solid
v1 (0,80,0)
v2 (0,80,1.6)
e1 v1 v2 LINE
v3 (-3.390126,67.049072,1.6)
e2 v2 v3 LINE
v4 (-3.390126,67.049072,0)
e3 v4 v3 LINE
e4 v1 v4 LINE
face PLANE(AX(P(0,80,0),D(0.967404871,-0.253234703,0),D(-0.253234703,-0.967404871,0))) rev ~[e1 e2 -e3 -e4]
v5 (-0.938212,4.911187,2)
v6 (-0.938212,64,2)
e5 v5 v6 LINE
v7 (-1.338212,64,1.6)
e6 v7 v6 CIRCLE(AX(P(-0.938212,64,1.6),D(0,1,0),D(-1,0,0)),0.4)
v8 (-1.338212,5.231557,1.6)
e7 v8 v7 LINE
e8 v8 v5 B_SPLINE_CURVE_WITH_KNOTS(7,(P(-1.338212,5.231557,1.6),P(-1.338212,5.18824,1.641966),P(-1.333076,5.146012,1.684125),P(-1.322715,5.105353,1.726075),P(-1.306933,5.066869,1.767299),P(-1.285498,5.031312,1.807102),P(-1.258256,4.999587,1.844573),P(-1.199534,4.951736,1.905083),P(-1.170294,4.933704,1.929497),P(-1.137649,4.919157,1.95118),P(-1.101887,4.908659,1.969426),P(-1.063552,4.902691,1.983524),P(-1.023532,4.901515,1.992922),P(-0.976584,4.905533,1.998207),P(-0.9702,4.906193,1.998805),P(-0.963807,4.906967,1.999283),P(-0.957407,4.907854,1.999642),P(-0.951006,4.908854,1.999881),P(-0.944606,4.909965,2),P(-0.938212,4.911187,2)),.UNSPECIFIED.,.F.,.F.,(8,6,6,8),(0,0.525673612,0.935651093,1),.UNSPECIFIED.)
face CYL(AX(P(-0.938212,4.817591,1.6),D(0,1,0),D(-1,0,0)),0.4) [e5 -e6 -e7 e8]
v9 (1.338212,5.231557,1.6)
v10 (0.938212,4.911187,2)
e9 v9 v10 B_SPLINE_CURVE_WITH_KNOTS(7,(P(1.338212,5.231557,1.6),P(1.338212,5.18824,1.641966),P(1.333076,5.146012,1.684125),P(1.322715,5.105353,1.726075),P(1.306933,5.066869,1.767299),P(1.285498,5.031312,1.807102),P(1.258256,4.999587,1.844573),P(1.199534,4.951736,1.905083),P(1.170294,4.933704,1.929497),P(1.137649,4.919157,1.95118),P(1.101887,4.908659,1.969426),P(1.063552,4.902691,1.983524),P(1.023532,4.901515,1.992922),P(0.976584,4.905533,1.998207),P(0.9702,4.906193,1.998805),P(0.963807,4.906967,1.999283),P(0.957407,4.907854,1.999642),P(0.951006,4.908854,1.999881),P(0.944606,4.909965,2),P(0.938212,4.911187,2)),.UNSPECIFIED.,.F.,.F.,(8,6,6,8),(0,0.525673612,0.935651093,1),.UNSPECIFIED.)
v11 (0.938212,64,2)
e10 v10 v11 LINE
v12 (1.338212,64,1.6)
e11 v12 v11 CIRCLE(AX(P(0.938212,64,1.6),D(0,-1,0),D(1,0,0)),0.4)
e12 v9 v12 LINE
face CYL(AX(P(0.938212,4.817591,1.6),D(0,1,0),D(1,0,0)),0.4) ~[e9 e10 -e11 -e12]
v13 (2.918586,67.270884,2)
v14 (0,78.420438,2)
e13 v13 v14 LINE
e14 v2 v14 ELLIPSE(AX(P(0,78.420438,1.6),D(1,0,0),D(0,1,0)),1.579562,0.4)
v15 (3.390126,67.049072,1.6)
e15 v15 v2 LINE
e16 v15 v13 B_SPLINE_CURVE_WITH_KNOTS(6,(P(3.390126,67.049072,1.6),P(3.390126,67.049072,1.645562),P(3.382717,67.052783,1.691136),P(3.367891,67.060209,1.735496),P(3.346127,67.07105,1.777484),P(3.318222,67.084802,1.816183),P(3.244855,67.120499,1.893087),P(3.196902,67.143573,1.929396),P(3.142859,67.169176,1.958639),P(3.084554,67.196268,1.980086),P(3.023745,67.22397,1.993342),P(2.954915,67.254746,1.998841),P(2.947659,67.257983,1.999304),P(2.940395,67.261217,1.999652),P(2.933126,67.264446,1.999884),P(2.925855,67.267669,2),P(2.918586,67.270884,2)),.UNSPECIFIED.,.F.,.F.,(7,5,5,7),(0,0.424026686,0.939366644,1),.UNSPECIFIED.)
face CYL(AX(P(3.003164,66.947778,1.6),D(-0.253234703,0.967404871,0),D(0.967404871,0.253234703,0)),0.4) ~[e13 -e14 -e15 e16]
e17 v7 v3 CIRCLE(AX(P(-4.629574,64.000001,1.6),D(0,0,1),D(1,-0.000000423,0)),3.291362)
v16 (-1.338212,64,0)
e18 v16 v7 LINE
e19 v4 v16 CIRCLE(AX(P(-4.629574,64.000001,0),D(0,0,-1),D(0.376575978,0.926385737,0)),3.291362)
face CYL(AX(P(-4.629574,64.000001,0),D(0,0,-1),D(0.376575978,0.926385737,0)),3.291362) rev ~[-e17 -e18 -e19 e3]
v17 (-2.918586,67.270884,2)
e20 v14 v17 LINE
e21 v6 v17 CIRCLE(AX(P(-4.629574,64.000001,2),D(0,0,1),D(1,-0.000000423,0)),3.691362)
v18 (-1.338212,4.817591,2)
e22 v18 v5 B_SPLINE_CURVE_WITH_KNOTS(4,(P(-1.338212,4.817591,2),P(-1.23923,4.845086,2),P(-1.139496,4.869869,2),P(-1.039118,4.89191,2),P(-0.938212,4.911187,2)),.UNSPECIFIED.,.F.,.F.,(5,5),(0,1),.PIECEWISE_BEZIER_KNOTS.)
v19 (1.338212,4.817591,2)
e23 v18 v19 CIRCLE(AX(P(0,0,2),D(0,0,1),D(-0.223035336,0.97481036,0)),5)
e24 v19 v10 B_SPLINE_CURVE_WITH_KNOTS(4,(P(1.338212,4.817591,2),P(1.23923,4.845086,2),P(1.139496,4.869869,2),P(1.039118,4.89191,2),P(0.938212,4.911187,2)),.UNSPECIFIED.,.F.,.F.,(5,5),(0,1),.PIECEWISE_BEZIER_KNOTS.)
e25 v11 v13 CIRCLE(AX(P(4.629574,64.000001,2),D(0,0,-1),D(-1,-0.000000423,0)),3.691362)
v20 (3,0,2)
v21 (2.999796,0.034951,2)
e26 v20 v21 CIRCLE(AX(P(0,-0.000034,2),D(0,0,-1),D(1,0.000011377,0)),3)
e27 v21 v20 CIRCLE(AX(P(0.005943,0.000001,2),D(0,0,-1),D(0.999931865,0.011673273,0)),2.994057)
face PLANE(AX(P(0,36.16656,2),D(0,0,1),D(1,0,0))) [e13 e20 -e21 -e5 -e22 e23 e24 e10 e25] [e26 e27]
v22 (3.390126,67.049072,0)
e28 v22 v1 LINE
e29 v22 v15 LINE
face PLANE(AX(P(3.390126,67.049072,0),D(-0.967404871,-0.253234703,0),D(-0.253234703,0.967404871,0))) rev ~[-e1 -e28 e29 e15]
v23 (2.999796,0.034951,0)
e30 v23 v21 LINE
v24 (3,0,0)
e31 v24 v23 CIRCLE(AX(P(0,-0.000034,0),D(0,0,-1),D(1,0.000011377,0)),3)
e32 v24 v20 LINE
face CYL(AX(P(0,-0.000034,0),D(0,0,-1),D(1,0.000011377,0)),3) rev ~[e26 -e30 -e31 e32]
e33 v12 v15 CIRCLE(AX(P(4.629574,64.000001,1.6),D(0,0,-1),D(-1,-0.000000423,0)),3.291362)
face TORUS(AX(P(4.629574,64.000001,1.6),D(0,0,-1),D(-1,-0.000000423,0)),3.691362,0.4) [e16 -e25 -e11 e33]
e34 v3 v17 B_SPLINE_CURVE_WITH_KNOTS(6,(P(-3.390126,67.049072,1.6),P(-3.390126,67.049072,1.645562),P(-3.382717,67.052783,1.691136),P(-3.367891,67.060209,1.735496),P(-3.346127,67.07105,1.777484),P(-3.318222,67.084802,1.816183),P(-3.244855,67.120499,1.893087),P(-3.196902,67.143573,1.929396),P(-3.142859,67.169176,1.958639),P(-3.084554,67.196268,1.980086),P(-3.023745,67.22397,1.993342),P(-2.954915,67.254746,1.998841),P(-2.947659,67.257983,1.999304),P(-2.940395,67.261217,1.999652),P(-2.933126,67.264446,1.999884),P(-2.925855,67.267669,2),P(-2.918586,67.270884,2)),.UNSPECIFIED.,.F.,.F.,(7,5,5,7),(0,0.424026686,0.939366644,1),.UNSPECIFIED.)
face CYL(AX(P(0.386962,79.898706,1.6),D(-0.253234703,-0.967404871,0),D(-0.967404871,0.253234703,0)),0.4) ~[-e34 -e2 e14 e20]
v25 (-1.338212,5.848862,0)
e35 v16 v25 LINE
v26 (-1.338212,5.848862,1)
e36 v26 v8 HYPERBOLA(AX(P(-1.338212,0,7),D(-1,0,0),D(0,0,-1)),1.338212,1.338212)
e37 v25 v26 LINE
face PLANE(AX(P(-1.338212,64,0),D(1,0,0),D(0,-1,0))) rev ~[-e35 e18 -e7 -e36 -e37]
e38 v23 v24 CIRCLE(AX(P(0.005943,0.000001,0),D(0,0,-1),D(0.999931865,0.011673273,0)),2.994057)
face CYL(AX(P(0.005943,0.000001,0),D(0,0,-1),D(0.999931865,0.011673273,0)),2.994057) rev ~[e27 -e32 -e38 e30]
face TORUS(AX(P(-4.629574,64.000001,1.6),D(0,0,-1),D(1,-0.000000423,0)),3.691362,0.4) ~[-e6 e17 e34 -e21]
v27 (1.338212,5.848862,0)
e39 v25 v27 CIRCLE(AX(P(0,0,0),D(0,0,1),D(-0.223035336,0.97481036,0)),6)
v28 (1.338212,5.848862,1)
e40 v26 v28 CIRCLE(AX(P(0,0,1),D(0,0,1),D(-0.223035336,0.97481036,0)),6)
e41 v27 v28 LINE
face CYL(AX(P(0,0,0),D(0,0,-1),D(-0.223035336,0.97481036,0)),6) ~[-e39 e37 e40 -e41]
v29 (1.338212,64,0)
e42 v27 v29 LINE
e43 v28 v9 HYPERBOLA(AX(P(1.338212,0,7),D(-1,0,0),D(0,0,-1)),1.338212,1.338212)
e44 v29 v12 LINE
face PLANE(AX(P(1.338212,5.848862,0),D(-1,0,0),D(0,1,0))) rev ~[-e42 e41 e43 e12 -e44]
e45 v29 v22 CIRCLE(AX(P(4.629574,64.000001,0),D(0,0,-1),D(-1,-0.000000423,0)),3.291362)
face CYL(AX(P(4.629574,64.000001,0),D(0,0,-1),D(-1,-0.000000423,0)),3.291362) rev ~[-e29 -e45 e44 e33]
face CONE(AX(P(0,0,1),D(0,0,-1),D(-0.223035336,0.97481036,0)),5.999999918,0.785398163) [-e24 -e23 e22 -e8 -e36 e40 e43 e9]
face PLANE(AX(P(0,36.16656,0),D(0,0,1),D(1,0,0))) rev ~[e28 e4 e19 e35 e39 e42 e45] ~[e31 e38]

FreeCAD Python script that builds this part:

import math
import FreeCAD as App
import Part
import Sketcher
from FreeCAD import Vector
Q = App.Units.Quantity


def edges_at(feature, points):
    """Names of the edges that pass closest to the given points."""
    edges = feature.Shape.Edges
    near = lambda p: min(range(len(edges)), key=lambda i: edges[i].distToShape(Part.Vertex(*p))[0])
    return sorted({f"Edge{near(p) + 1}" for p in points})

doc = App.newDocument("Part")
body = doc.addObject("PartDesign::Body", "Body")

# Sketch on XY plane
sketch1 = body.newObject("Sketcher::SketchObject", "Sketch")
sketch1.AttachmentSupport = (doc.getObject("XY_Plane"), [""])
sketch1.MapMode = "FlatFace"
sketch1.addGeometry(Part.LineSegment(Vector(-1.338, 64, 0), Vector(-1.338, 5.849, 0)), False)
sketch1.addGeometry(Part.ArcOfCircle(Part.Circle(Vector(0, 0, 0), Vector(0, 0, 1), 6), math.radians(103), math.radians(437)), False)
sketch1.addGeometry(Part.LineSegment(Vector(1.338, 5.849, 0), Vector(1.338, 64, 0)), False)
sketch1.addGeometry(Part.ArcOfCircle(Part.Circle(Vector(4.63, 64, 0), Vector(0, 0, 1), 3.291), math.radians(112), math.radians(180)), False)
sketch1.addGeometry(Part.LineSegment(Vector(3.39, 67.049, 0), Vector(0, 80, 0)), False)
sketch1.addGeometry(Part.LineSegment(Vector(0, 80, 0), Vector(-3.39, 67.049, 0)), False)
sketch1.addGeometry(Part.ArcOfCircle(Part.Circle(Vector(-4.63, 64, 0), Vector(0, 0, 1), 3.291), math.radians(0), math.radians(68)), False)
sketch1.addGeometry(Part.ArcOfCircle(Part.Circle(Vector(0, 0, 0), Vector(0, 0, 1), 3), math.radians(1), math.radians(360)), False)
sketch1.addGeometry(Part.ArcOfCircle(Part.Circle(Vector(0.006, 0, 0), Vector(0, 0, 1), 2.994), math.radians(0), math.radians(0.67)), False)
sketch1.addConstraint(Sketcher.Constraint("Coincident", 0, 2, 1, 1))
sketch1.addConstraint(Sketcher.Constraint("Coincident", 1, 2, 2, 1))
sketch1.addConstraint(Sketcher.Constraint("Tangent", 2, 2, 3, 2))
sketch1.addConstraint(Sketcher.Constraint("Coincident", 3, 1, 4, 1))
sketch1.addConstraint(Sketcher.Constraint("Coincident", 4, 2, 5, 1))
sketch1.addConstraint(Sketcher.Constraint("Coincident", 5, 2, 6, 2))
sketch1.addConstraint(Sketcher.Constraint("Tangent", 6, 1, 0, 1))
sketch1.addConstraint(Sketcher.Constraint("Coincident", 7, 1, 8, 2))
sketch1.addConstraint(Sketcher.Constraint("Coincident", 8, 1, 7, 2))
sketch1.addConstraint(Sketcher.Constraint("Vertical", 0))
sketch1.addConstraint(Sketcher.Constraint("Vertical", 2))
sketch1.addConstraint(Sketcher.Constraint("Coincident", 1, 3, -1, 1))
sketch1.addConstraint(Sketcher.Constraint("Equal", 3, 6))
sketch1.addConstraint(Sketcher.Constraint("Symmetric", 3, 3, 6, 3, -2))
sketch1.addConstraint(Sketcher.Constraint("PointOnObject", 7, 3, -2))
sketch1.addConstraint(Sketcher.Constraint("PointOnObject", 8, 3, -1))
sketch1.addConstraint(Sketcher.Constraint("PointOnObject", 4, 2, -2))
sketch1.addConstraint(Sketcher.Constraint("PointOnObject", 8, 1, -1))
sketch1.addConstraint(Sketcher.Constraint("Horizontal", 3, 1, 5, 2))
sketch1.addConstraint(Sketcher.Constraint("Radius", 1, Q("6 mm")))
sketch1.addConstraint(Sketcher.Constraint("Radius", 7, Q("3 mm")))
sketch1.addConstraint(Sketcher.Constraint("DistanceY", -1, 1, 3, 3, Q("64.000001 mm")))
sketch1.addConstraint(Sketcher.Constraint("DistanceY", -1, 1, 4, 2, Q("80 mm")))
sketch1.addConstraint(Sketcher.Constraint("Radius", 3, Q("3.291362 mm")))
sketch1.addConstraint(Sketcher.Constraint("Radius", 8, Q("2.994057 mm")))
sketch1.addConstraint(Sketcher.Constraint("DistanceY", 0, 2, 0, 1, Q("58.151138 mm")))
sketch1.addConstraint(Sketcher.Constraint("DistanceX", 6, 3, 3, 1, Q("8.0197 mm")))
sketch1.addConstraint(Sketcher.Constraint("DistanceY", -1, 1, 7, 1, Q("0.034951 mm")))
pad1 = body.newObject("PartDesign::Pad", "Pad")
pad1.Profile = sketch1
pad1.Length = 2
doc.recompute()

chamfer = body.newObject("PartDesign::Chamfer", "Chamfer")
chamfer.Base = (pad1, edges_at(pad1, [(0, -6, 2)]))
chamfer.Size = 1
doc.recompute()

fillet = body.newObject("PartDesign::Fillet", "Fillet")
fillet.Base = (chamfer, edges_at(chamfer, [
    (1.338, 34.409, 2),
    (-1.338, 34.409, 2),
    (1.695, 73.525, 2),
    (-1.695, 73.525, 2),
    (1.899, 65.838, 2),
    (-1.899, 65.838, 2),
]))
fillet.Radius = 0.4

doc.recompute()
